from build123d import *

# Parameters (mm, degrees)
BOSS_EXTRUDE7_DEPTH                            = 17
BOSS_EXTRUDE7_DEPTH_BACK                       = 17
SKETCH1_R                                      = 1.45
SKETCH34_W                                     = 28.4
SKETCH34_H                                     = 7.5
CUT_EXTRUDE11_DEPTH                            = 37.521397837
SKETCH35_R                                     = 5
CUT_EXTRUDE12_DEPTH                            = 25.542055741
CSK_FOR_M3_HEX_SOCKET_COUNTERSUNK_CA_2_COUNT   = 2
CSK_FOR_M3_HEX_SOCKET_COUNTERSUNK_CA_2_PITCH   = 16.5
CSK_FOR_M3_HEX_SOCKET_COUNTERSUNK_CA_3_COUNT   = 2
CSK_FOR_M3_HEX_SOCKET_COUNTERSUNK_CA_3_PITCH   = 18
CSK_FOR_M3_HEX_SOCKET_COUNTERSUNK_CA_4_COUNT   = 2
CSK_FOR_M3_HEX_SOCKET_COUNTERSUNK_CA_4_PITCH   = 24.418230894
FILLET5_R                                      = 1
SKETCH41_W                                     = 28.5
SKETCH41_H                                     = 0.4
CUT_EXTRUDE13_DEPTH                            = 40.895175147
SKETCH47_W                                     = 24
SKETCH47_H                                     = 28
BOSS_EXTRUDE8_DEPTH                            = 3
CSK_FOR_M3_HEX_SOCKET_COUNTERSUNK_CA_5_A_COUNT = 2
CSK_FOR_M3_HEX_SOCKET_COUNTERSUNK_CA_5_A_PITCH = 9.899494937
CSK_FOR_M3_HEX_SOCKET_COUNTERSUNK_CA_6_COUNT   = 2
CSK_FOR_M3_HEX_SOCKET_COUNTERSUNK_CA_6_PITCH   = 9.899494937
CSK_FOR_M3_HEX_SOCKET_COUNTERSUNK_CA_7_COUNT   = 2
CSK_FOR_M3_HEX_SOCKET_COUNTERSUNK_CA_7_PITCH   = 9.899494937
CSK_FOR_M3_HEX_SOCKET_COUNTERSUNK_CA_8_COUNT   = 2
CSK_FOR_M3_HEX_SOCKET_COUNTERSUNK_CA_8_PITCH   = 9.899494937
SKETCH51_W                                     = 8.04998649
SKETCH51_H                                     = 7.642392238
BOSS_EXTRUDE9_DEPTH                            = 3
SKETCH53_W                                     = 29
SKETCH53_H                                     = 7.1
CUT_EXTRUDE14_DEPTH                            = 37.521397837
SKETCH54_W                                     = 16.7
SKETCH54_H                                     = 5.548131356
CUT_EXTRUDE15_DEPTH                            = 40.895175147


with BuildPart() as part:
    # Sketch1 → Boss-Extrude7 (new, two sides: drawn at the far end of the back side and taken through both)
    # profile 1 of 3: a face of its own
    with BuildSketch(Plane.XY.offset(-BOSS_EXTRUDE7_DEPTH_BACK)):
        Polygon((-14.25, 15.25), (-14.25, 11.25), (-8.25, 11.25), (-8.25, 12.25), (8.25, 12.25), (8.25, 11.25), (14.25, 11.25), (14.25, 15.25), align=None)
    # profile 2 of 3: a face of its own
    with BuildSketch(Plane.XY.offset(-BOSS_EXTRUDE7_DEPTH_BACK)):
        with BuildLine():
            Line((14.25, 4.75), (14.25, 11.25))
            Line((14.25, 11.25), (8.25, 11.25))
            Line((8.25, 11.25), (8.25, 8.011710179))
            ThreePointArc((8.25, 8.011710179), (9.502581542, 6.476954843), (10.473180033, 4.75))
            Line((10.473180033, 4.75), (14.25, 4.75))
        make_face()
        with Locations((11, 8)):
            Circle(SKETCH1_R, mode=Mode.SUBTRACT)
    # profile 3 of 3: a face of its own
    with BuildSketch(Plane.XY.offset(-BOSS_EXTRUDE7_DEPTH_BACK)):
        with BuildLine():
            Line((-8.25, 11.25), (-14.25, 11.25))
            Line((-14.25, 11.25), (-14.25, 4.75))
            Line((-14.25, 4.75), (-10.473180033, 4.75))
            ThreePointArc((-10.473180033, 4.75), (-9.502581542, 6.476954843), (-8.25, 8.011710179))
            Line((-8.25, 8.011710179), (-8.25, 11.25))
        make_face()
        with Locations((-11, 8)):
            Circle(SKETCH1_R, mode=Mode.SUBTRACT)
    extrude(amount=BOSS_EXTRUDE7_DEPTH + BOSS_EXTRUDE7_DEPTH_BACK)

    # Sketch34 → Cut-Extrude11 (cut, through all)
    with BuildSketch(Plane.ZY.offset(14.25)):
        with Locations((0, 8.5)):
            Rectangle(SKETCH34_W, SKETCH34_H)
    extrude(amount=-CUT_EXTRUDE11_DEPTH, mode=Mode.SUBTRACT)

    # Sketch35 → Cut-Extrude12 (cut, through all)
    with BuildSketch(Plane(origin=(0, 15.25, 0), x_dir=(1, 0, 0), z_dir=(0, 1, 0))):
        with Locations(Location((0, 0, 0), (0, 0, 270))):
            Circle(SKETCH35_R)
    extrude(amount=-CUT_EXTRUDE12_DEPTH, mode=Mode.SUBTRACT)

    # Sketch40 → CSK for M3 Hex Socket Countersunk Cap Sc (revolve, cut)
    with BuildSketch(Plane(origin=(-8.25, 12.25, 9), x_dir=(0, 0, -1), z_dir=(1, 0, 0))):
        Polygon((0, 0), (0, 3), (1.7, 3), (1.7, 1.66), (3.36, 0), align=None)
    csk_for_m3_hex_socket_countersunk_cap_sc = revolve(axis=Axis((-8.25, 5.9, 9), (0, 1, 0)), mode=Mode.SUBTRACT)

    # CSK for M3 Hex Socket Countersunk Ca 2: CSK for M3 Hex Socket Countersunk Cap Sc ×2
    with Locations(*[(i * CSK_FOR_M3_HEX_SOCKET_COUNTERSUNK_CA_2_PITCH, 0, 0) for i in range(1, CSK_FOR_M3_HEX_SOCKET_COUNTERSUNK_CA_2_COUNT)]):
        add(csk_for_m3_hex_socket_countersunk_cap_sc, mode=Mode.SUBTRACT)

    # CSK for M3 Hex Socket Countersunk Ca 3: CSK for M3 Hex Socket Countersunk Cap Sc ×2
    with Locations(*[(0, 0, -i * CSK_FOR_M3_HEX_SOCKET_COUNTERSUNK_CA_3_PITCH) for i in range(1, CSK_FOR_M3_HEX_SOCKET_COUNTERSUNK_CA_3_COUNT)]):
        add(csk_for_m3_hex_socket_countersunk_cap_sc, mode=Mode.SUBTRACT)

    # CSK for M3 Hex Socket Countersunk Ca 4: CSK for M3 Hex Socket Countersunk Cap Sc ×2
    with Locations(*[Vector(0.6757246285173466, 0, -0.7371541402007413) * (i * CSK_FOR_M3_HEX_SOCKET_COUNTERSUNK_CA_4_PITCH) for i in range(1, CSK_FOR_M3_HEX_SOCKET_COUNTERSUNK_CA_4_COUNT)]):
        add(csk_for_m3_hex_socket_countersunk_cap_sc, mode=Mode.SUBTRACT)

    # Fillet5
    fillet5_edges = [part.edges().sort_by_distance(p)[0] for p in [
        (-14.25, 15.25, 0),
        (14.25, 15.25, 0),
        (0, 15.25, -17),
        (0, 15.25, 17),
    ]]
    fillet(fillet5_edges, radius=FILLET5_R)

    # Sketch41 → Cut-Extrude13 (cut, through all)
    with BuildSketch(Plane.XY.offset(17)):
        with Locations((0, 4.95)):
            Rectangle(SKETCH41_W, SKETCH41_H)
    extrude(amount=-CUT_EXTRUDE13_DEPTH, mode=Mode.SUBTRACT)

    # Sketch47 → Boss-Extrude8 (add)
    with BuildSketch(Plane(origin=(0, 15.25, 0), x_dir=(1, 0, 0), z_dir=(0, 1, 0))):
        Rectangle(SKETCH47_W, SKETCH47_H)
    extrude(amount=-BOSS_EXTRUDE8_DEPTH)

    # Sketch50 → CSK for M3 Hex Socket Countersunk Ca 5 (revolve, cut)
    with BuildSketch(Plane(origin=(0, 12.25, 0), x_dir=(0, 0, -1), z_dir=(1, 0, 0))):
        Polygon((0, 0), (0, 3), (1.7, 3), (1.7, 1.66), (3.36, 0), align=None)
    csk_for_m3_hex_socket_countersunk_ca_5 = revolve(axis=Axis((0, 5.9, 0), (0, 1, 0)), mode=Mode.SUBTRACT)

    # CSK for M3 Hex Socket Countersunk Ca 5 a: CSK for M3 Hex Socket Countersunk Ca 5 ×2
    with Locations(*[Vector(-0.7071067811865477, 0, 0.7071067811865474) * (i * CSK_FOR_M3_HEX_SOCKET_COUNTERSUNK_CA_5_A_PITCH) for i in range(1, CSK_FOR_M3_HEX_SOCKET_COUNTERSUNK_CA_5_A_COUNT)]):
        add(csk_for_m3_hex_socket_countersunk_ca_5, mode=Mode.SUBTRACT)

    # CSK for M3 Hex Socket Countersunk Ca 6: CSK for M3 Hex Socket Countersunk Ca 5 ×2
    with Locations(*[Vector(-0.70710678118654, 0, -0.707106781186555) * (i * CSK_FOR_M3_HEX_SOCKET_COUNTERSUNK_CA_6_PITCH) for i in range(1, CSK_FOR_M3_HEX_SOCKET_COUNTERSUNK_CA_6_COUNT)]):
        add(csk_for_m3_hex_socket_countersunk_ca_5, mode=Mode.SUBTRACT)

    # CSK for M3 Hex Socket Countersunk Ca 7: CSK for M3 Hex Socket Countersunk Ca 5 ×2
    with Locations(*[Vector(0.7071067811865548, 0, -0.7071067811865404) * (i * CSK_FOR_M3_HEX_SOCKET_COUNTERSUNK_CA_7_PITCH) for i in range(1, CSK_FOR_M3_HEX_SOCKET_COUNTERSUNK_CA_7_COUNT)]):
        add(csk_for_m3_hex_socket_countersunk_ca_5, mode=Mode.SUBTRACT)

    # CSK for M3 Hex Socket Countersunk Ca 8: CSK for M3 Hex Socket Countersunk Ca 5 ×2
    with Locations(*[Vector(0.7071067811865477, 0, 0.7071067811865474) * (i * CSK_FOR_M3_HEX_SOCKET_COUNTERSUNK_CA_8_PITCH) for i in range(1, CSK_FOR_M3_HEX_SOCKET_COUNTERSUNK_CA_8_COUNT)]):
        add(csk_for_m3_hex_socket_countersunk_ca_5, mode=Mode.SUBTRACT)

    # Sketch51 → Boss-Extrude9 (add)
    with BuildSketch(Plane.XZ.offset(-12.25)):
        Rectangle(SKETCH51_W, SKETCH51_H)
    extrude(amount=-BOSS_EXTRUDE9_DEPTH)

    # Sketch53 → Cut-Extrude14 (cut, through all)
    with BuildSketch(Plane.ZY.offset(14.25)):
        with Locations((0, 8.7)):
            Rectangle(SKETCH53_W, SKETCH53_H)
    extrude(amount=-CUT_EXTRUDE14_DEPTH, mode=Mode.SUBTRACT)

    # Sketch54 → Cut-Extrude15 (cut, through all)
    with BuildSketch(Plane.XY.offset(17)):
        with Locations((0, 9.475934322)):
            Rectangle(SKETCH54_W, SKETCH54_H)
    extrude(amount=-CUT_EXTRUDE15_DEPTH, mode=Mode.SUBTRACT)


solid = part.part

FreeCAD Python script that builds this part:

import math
import FreeCAD as App
import Part
import Sketcher

V = App.Vector
Q = App.Units.Quantity


def edges_at(feature, points):
    """Names of the edges that pass closest to the given points."""
    edges = feature.Shape.Edges
    near = lambda p: min(range(len(edges)), key=lambda i: edges[i].distToShape(Part.Vertex(*p))[0])
    return sorted({f"Edge{near(p) + 1}" for p in points})

doc = App.newDocument("Part")
body = doc.addObject("PartDesign::Body", "Body")

sketch1 = body.newObject("Sketcher::SketchObject", "Sketch")
sketch1.AttachmentSupport = (doc.getObject("XY_Plane"), [""])
sketch1.MapMode = "FlatFace"
sketch1.addGeometry([
    Part.LineSegment(V(-14.2, 15.2, 0), V(-14.2, 4.8, 0)),
    Part.LineSegment(V(-14.2, 4.8, 0), V(-10.5, 4.8, 0)),
    Part.ArcOfCircle(Part.Circle(V(0, 0, 0), V(0, 0, 1), 11.5), math.radians(135.84), math.radians(155.6)),
    Part.LineSegment(V(-8.2, 8, 0), V(-8.2, 12.2, 0)),
    Part.LineSegment(V(-8.2, 12.2, 0), V(8.2, 12.2, 0)),
    Part.LineSegment(V(8.2, 12.2, 0), V(8.2, 8, 0)),
    Part.ArcOfCircle(Part.Circle(V(0, 0, 0), V(0, 0, 1), 11.5), math.radians(24.4), math.radians(44.16)),
    Part.LineSegment(V(10.5, 4.8, 0), V(14.2, 4.8, 0)),
    Part.LineSegment(V(14.2, 4.8, 0), V(14.2, 15.2, 0)),
    Part.LineSegment(V(14.2, 15.2, 0), V(-14.2, 15.2, 0)),
    Part.Circle(V(-11, 8, 0), V(0, 0, 1), 1.4),
    Part.Circle(V(11, 8, 0), V(0, 0, 1), 1.4),
], False)
sketch1.addConstraint([
    Sketcher.Constraint("Coincident", 0, 2, 1, 1),
    Sketcher.Constraint("Coincident", 1, 2, 2, 2),
    Sketcher.Constraint("Coincident", 2, 1, 3, 1),
    Sketcher.Constraint("Coincident", 3, 2, 4, 1),
    Sketcher.Constraint("Coincident", 4, 2, 5, 1),
    Sketcher.Constraint("Coincident", 5, 2, 6, 2),
    Sketcher.Constraint("Coincident", 6, 1, 7, 1),
    Sketcher.Constraint("Coincident", 7, 2, 8, 1),
    Sketcher.Constraint("Coincident", 8, 2, 9, 1),
    Sketcher.Constraint("Coincident", 9, 2, 0, 1),
    Sketcher.Constraint("Vertical", 0),
    Sketcher.Constraint("Horizontal", 1),
    Sketcher.Constraint("Vertical", 3),
    Sketcher.Constraint("Horizontal", 4),
    Sketcher.Constraint("Vertical", 5),
    Sketcher.Constraint("Horizontal", 7),
    Sketcher.Constraint("Vertical", 8),
    Sketcher.Constraint("Horizontal", 9),
    Sketcher.Constraint("Coincident", 2, 3, -1, 1),
    Sketcher.Constraint("Coincident", 6, 3, -1, 1),
    Sketcher.Constraint("Equal", 2, 6),
    Sketcher.Constraint("Equal", 10, 11),
    Sketcher.Constraint("Symmetric", 10, 3, 11, 3, -2),
    Sketcher.Constraint("Symmetric", 0, 2, 7, 2, -2),
    Sketcher.Constraint("Horizontal", 2, 1, 5, 2),
    Sketcher.Constraint("Diameter", 10, Q("2.9 mm")),
    Sketcher.Constraint("Radius", 2, Q("11.5 mm")),
    Sketcher.Constraint("DistanceX", 4, 1, 4, 2, Q("16.5 mm")),
    Sketcher.Constraint("DistanceX", 9, 2, 9, 1, Q("28.5 mm")),
    Sketcher.Constraint("DistanceY", 0, 2, 0, 1, Q("10.5 mm")),
    Sketcher.Constraint("DistanceX", 10, 3, -1, 1, Q("11 mm")),
    Sketcher.Constraint("DistanceY", -1, 1, 10, 3, Q("8 mm")),
    Sketcher.Constraint("DistanceY", 4, 2, 8, 2, Q("3 mm")),
    Sketcher.Constraint("DistanceY", -1, 1, 0, 2, Q("4.75 mm")),
])
pad1 = body.newObject("PartDesign::Pad", "Pad")
pad1.Profile = sketch1
pad1.Type = "TwoLengths"
pad1.Length = 17
pad1.Length2 = 17

sketch2 = body.newObject("Sketcher::SketchObject", "Sketch001")
sketch2.AttachmentSupport = (doc.getObject("YZ_Plane"), [""])
sketch2.MapMode = "FlatFace"
sketch2.AttachmentOffset = App.Placement(V(0, 0, -14.25), App.Rotation())
sketch2.addGeometry([
    Part.LineSegment(V(12, -14, 0), V(5, -14, 0)),
    Part.LineSegment(V(5, -14, 0), V(5, 14, 0)),
    Part.LineSegment(V(5, 14, 0), V(12, 14, 0)),
    Part.LineSegment(V(12, 14, 0), V(12, -14, 0)),
], False)
sketch2.addConstraint([
    Sketcher.Constraint("Coincident", 0, 2, 1, 1),
    Sketcher.Constraint("Coincident", 1, 2, 2, 1),
    Sketcher.Constraint("Coincident", 2, 2, 3, 1),
    Sketcher.Constraint("Coincident", 3, 2, 0, 1),
    Sketcher.Constraint("Horizontal", 0),
    Sketcher.Constraint("Vertical", 1),
    Sketcher.Constraint("Horizontal", 2),
    Sketcher.Constraint("Vertical", 3),
    Sketcher.Constraint("DistanceX", 0, 2, 0, 1, Q("7.5 mm")),
    Sketcher.Constraint("DistanceY", 1, 1, 1, 2, Q("28.4 mm")),
    Sketcher.Constraint("DistanceY", 0, 2, -1, 1, Q("14.2 mm")),
    Sketcher.Constraint("DistanceX", -1, 1, 0, 2, Q("4.75 mm")),
])
pocket1 = body.newObject("PartDesign::Pocket", "Pocket")
pocket1.Profile = sketch2
pocket1.Type = "ThroughAll"
pocket1.Reversed = True

sketch3 = body.newObject("Sketcher::SketchObject", "Sketch002")
sketch3.AttachmentSupport = (doc.getObject("XZ_Plane"), [""])
sketch3.MapMode = "FlatFace"
sketch3.AttachmentOffset = App.Placement(V(0, 0, -15.25), App.Rotation())
sketch3.addGeometry(Part.Circle(V(0, 0, 0), V(0, 0, 1), 5), False)
sketch3.addConstraint([
    Sketcher.Constraint("Coincident", 0, 3, -1, 1),
    Sketcher.Constraint("Diameter", 0, Q("10 mm")),
])
pocket2 = body.newObject("PartDesign::Pocket", "Pocket001")
pocket2.Profile = sketch3
pocket2.Type = "ThroughAll"
pocket2.Reversed = True

sketch4 = body.newObject("Sketcher::SketchObject", "Sketch003")
sketch4.AttachmentSupport = (doc.getObject("YZ_Plane"), [""])
sketch4.MapMode = "FlatFace"
sketch4.AttachmentOffset = App.Placement(V(0, 0, -8.25), App.Rotation())
sketch4.addGeometry([
    Part.LineSegment(V(15.2, 9, 0), V(12.2, 9, 0)),
    Part.LineSegment(V(12.2, 9, 0), V(12.2, 5.6, 0)),
    Part.LineSegment(V(12.2, 5.6, 0), V(13.9, 7.3, 0)),
    Part.LineSegment(V(13.9, 7.3, 0), V(15.2, 7.3, 0)),
    Part.LineSegment(V(15.2, 7.3, 0), V(15.2, 9, 0)),
], False)
sketch4.addGeometry(Part.LineSegment(V(12.2, 9, 0), V(15.2, 9, 0)), True)
sketch4.addConstraint([
    Sketcher.Constraint("Coincident", 0, 2, 1, 1),
    Sketcher.Constraint("Coincident", 1, 2, 2, 1),
    Sketcher.Constraint("Coincident", 2, 2, 3, 1),
    Sketcher.Constraint("Coincident", 3, 2, 4, 1),
    Sketcher.Constraint("Coincident", 4, 2, 0, 1),
    Sketcher.Constraint("Horizontal", 0),
    Sketcher.Constraint("Vertical", 1),
    Sketcher.Constraint("Horizontal", 3),
    Sketcher.Constraint("Vertical", 4),
    Sketcher.Constraint("Horizontal", 5),
    Sketcher.Constraint("Coincident", 5, 1, 0, 2),
    Sketcher.Constraint("Vertical", 3, 2, 5, 2),
    Sketcher.Constraint("DistanceX", 0, 2, 0, 1, Q("3 mm")),
    Sketcher.Constraint("Angle", 2, Q("45 deg")),
    Sketcher.Constraint("DistanceY", 4, 1, 4, 2, Q("1.7 mm")),
    Sketcher.Constraint("DistanceY", -1, 1, 0, 2, Q("9 mm")),
    Sketcher.Constraint("DistanceX", 3, 1, 3, 2, Q("1.34 mm")),
    Sketcher.Constraint("DistanceX", -1, 1, 0, 2, Q("12.25 mm")),
])
groove = body.newObject("PartDesign::Groove", "Groove")
groove.Profile = sketch4
groove.ReferenceAxis = (sketch4, ["Axis0"])
groove.Angle = 360
doc.recompute()

linearpattern = body.newObject("PartDesign::LinearPattern", "LinearPattern")
linearpattern.Originals = [groove]
linearpattern.Direction = (doc.getObject("X_Axis"), [""])
linearpattern.Mode = "offset"
linearpattern.Offset = 16.5
linearpattern.Occurrences = 2
body.Tip = linearpattern
doc.recompute()

linearpattern2 = body.newObject("PartDesign::LinearPattern", "LinearPattern001")
linearpattern2.Originals = [groove]
linearpattern2.Direction = (doc.getObject("Z_Axis"), [""])
linearpattern2.Mode = "offset"
linearpattern2.Offset = 18
linearpattern2.Occurrences = 2
linearpattern2.Reversed = True
body.Tip = linearpattern2
doc.recompute()

datumline = body.newObject("PartDesign::Line", "DatumLine")
datumline.Placement = App.Placement(V(0, 0, 0), App.Rotation(V(0, 0, 1), V(0.675724629, 0, -0.73715414)))
linearpattern3 = body.newObject("PartDesign::LinearPattern", "LinearPattern002")
linearpattern3.Originals = [groove]
linearpattern3.Direction = (datumline, [""])
linearpattern3.Mode = "offset"
linearpattern3.Offset = 24.418231
linearpattern3.Occurrences = 2
body.Tip = linearpattern3
doc.recompute()

fillet = body.newObject("PartDesign::Fillet", "Fillet")
fillet.Base = (linearpattern3, edges_at(linearpattern3, [
    (-14.25, 15.25, 0),
    (14.25, 15.25, 0),
    (0, 15.25, -17),
    (0, 15.25, 17),
]))
fillet.Radius = 1

sketch5 = body.newObject("Sketcher::SketchObject", "Sketch004")
sketch5.AttachmentSupport = (doc.getObject("XY_Plane"), [""])
sketch5.MapMode = "FlatFace"
sketch5.AttachmentOffset = App.Placement(V(0, 0, 17), App.Rotation())
sketch5.addGeometry([
    Part.LineSegment(V(-14.25, 5.15, 0), V(-14.25, 4.75, 0)),
    Part.LineSegment(V(-14.25, 4.75, 0), V(14.25, 4.75, 0)),
    Part.LineSegment(V(14.25, 4.75, 0), V(14.25, 5.15, 0)),
    Part.LineSegment(V(14.25, 5.15, 0), V(-14.25, 5.15, 0)),
], False)
sketch5.addConstraint([
    Sketcher.Constraint("Coincident", 0, 2, 1, 1),
    Sketcher.Constraint("Coincident", 1, 2, 2, 1),
    Sketcher.Constraint("Coincident", 2, 2, 3, 1),
    Sketcher.Constraint("Coincident", 3, 2, 0, 1),
    Sketcher.Constraint("Vertical", 0),
    Sketcher.Constraint("Horizontal", 1),
    Sketcher.Constraint("Vertical", 2),
    Sketcher.Constraint("Horizontal", 3),
    Sketcher.Constraint("DistanceX", 1, 1, 1, 2, Q("28.5 mm")),
    Sketcher.Constraint("DistanceY", 0, 2, 0, 1, Q("0.4 mm")),
    Sketcher.Constraint("DistanceX", 0, 2, -1, 1, Q("14.25 mm")),
    Sketcher.Constraint("DistanceY", -1, 1, 0, 2, Q("4.75 mm")),
])
pocket3 = body.newObject("PartDesign::Pocket", "Pocket002")
pocket3.Profile = sketch5
pocket3.Type = "ThroughAll"

sketch6 = body.newObject("Sketcher::SketchObject", "Sketch005")
sketch6.AttachmentSupport = (doc.getObject("XZ_Plane"), [""])
sketch6.MapMode = "FlatFace"
sketch6.AttachmentOffset = App.Placement(V(0, 0, -15.25), App.Rotation())
sketch6.addGeometry([
    Part.LineSegment(V(-12, -14, 0), V(-12, 14, 0)),
    Part.LineSegment(V(-12, 14, 0), V(12, 14, 0)),
    Part.LineSegment(V(12, 14, 0), V(12, -14, 0)),
    Part.LineSegment(V(12, -14, 0), V(-12, -14, 0)),
], False)
sketch6.addConstraint([
    Sketcher.Constraint("Coincident", 0, 2, 1, 1),
    Sketcher.Constraint("Coincident", 1, 2, 2, 1),
    Sketcher.Constraint("Coincident", 2, 2, 3, 1),
    Sketcher.Constraint("Coincident", 3, 2, 0, 1),
    Sketcher.Constraint("Vertical", 0),
    Sketcher.Constraint("Horizontal", 1),
    Sketcher.Constraint("Vertical", 2),
    Sketcher.Constraint("Horizontal", 3),
    Sketcher.Constraint("Symmetric", 0, 2, 2, 2, -1, 1),
    Sketcher.Constraint("DistanceX", 1, 1, 1, 2, Q("24 mm")),
    Sketcher.Constraint("DistanceY", 0, 1, 0, 2, Q("28 mm")),
])
pad2 = body.newObject("PartDesign::Pad", "Pad001")
pad2.Profile = sketch6
pad2.Length = 3

sketch7 = body.newObject("Sketcher::SketchObject", "Sketch006")
sketch7.AttachmentSupport = (doc.getObject("YZ_Plane"), [""])
sketch7.MapMode = "FlatFace"
sketch7.addGeometry([
    Part.LineSegment(V(15.2, 0, 0), V(12.2, 0, 0)),
    Part.LineSegment(V(12.2, 0, 0), V(12.2, -3.4, 0)),
    Part.LineSegment(V(12.2, -3.4, 0), V(13.9, -1.7, 0)),
    Part.LineSegment(V(13.9, -1.7, 0), V(15.2, -1.7, 0)),
    Part.LineSegment(V(15.2, -1.7, 0), V(15.2, 0, 0)),
], False)
sketch7.addConstraint([
    Sketcher.Constraint("Coincident", 0, 2, 1, 1),
    Sketcher.Constraint("Coincident", 1, 2, 2, 1),
    Sketcher.Constraint("Coincident", 2, 2, 3, 1),
    Sketcher.Constraint("Coincident", 3, 2, 4, 1),
    Sketcher.Constraint("Coincident", 4, 2, 0, 1),
    Sketcher.Constraint("Horizontal", 0),
    Sketcher.Constraint("Vertical", 1),
    Sketcher.Constraint("Horizontal", 3),
    Sketcher.Constraint("Vertical", 4),
    Sketcher.Constraint("PointOnObject", 0, 2, -1),
    Sketcher.Constraint("DistanceX", 0, 2, 0, 1, Q("3 mm")),
    Sketcher.Constraint("Angle", 2, Q("45 deg")),
    Sketcher.Constraint("DistanceY", 4, 1, 4, 2, Q("1.7 mm")),
    Sketcher.Constraint("DistanceX", 3, 1, 3, 2, Q("1.34 mm")),
    Sketcher.Constraint("DistanceX", -1, 1, 0, 2, Q("12.25 mm")),
])
groove2 = body.newObject("PartDesign::Groove", "Groove001")
groove2.Profile = sketch7
groove2.ReferenceAxis = (sketch7, ["H_Axis"])
groove2.Angle = 360
doc.recompute()

datumline2 = body.newObject("PartDesign::Line", "DatumLine001")
datumline2.Placement = App.Placement(V(0, 0, 0), App.Rotation(V(0, 0, 1), V(-0.707106781, 0, 0.707106781)))
linearpattern4 = body.newObject("PartDesign::LinearPattern", "LinearPattern003")
linearpattern4.Originals = [groove2]
linearpattern4.Direction = (datumline2, [""])
linearpattern4.Mode = "offset"
linearpattern4.Offset = 9.899495
linearpattern4.Occurrences = 2
body.Tip = linearpattern4
doc.recompute()

datumline3 = body.newObject("PartDesign::Line", "DatumLine002")
datumline3.Placement = App.Placement(V(0, 0, 0), App.Rotation(V(0, 0, 1), V(-0.707106781, 0, -0.707106781)))
linearpattern5 = body.newObject("PartDesign::LinearPattern", "LinearPattern004")
linearpattern5.Originals = [groove2]
linearpattern5.Direction = (datumline3, [""])
linearpattern5.Mode = "offset"
linearpattern5.Offset = 9.899495
linearpattern5.Occurrences = 2
body.Tip = linearpattern5
doc.recompute()

datumline4 = body.newObject("PartDesign::Line", "DatumLine003")
datumline4.Placement = App.Placement(V(0, 0, 0), App.Rotation(V(0, 0, 1), V(0.707106781, 0, -0.707106781)))
linearpattern6 = body.newObject("PartDesign::LinearPattern", "LinearPattern005")
linearpattern6.Originals = [groove2]
linearpattern6.Direction = (datumline4, [""])
linearpattern6.Mode = "offset"
linearpattern6.Offset = 9.899495
linearpattern6.Occurrences = 2
body.Tip = linearpattern6
doc.recompute()

datumline5 = body.newObject("PartDesign::Line", "DatumLine004")
datumline5.Placement = App.Placement(V(0, 0, 0), App.Rotation(V(0, 0, 1), V(0.707106781, 0, 0.707106781)))
linearpattern7 = body.newObject("PartDesign::LinearPattern", "LinearPattern006")
linearpattern7.Originals = [groove2]
linearpattern7.Direction = (datumline5, [""])
linearpattern7.Mode = "offset"
linearpattern7.Offset = 9.899495
linearpattern7.Occurrences = 2
body.Tip = linearpattern7

sketch8 = body.newObject("Sketcher::SketchObject", "Sketch007")
sketch8.AttachmentSupport = (doc.getObject("XZ_Plane"), [""])
sketch8.MapMode = "FlatFace"
sketch8.AttachmentOffset = App.Placement(V(0, 0, -12.25), App.Rotation())
sketch8.addGeometry([
    Part.LineSegment(V(-4, 4, 0), V(-4, -4, 0)),
    Part.LineSegment(V(-4, -4, 0), V(4, -4, 0)),
    Part.LineSegment(V(4, -4, 0), V(4, 4, 0)),
    Part.LineSegment(V(4, 4, 0), V(-4, 4, 0)),
], False)
sketch8.addConstraint([
    Sketcher.Constraint("Coincident", 0, 2, 1, 1),
    Sketcher.Constraint("Coincident", 1, 2, 2, 1),
    Sketcher.Constraint("Coincident", 2, 2, 3, 1),
    Sketcher.Constraint("Coincident", 3, 2, 0, 1),
    Sketcher.Constraint("Vertical", 0),
    Sketcher.Constraint("Horizontal", 1),
    Sketcher.Constraint("Vertical", 2),
    Sketcher.Constraint("Horizontal", 3),
    Sketcher.Constraint("Symmetric", 0, 2, 2, 2, -1, 1),
    Sketcher.Constraint("DistanceX", 1, 1, 1, 2, Q("8.049986 mm")),
    Sketcher.Constraint("DistanceY", 0, 2, 0, 1, Q("7.642392 mm")),
])
pad3 = body.newObject("PartDesign::Pad", "Pad002")
pad3.Profile = sketch8
pad3.Length = 3
pad3.Reversed = True

sketch9 = body.newObject("Sketcher::SketchObject", "Sketch008")
sketch9.AttachmentSupport = (doc.getObject("YZ_Plane"), [""])
sketch9.MapMode = "FlatFace"
sketch9.AttachmentOffset = App.Placement(V(0, 0, -14.25), App.Rotation())
sketch9.addGeometry([
    Part.LineSegment(V(12, -14, 0), V(5, -14, 0)),
    Part.LineSegment(V(5, -14, 0), V(5, 14, 0)),
    Part.LineSegment(V(5, 14, 0), V(12, 14, 0)),
    Part.LineSegment(V(12, 14, 0), V(12, -14, 0)),
], False)
sketch9.addConstraint([
    Sketcher.Constraint("Coincident", 0, 2, 1, 1),
    Sketcher.Constraint("Coincident", 1, 2, 2, 1),
    Sketcher.Constraint("Coincident", 2, 2, 3, 1),
    Sketcher.Constraint("Coincident", 3, 2, 0, 1),
    Sketcher.Constraint("Horizontal", 0),
    Sketcher.Constraint("Vertical", 1),
    Sketcher.Constraint("Horizontal", 2),
    Sketcher.Constraint("Vertical", 3),
    Sketcher.Constraint("DistanceY", 1, 1, 1, 2, Q("29 mm")),
    Sketcher.Constraint("DistanceX", 0, 2, 0, 1, Q("7.1 mm")),
    Sketcher.Constraint("DistanceY", 0, 2, -1, 1, Q("14.5 mm")),
    Sketcher.Constraint("DistanceX", -1, 1, 0, 2, Q("5.15 mm")),
])
pocket4 = body.newObject("PartDesign::Pocket", "Pocket003")
pocket4.Profile = sketch9
pocket4.Type = "ThroughAll"
pocket4.Reversed = True

sketch10 = body.newObject("Sketcher::SketchObject", "Sketch009")
sketch10.AttachmentSupport = (doc.getObject("XY_Plane"), [""])
sketch10.MapMode = "FlatFace"
sketch10.AttachmentOffset = App.Placement(V(0, 0, 17), App.Rotation())
sketch10.addGeometry([
    Part.LineSegment(V(-8, 12, 0), V(-8, 7, 0)),
    Part.LineSegment(V(-8, 7, 0), V(8, 7, 0)),
    Part.LineSegment(V(8, 7, 0), V(8, 12, 0)),
    Part.LineSegment(V(8, 12, 0), V(-8, 12, 0)),
], False)
sketch10.addConstraint([
    Sketcher.Constraint("Coincident", 0, 2, 1, 1),
    Sketcher.Constraint("Coincident", 1, 2, 2, 1),
    Sketcher.Constraint("Coincident", 2, 2, 3, 1),
    Sketcher.Constraint("Coincident", 3, 2, 0, 1),
    Sketcher.Constraint("Vertical", 0),
    Sketcher.Constraint("Horizontal", 1),
    Sketcher.Constraint("Vertical", 2),
    Sketcher.Constraint("Horizontal", 3),
    Sketcher.Constraint("DistanceX", 1, 1, 1, 2, Q("16.7 mm")),
    Sketcher.Constraint("DistanceX", 0, 2, -1, 1, Q("8.35 mm")),
    Sketcher.Constraint("DistanceY", -1, 1, 2, 2, Q("12.25 mm")),
    Sketcher.Constraint("DistanceY", 0, 2, 0, 1, Q("5.548131 mm")),
])
pocket5 = body.newObject("PartDesign::Pocket", "Pocket004")
pocket5.Profile = sketch10
pocket5.Type = "ThroughAll"

doc.recompute()
